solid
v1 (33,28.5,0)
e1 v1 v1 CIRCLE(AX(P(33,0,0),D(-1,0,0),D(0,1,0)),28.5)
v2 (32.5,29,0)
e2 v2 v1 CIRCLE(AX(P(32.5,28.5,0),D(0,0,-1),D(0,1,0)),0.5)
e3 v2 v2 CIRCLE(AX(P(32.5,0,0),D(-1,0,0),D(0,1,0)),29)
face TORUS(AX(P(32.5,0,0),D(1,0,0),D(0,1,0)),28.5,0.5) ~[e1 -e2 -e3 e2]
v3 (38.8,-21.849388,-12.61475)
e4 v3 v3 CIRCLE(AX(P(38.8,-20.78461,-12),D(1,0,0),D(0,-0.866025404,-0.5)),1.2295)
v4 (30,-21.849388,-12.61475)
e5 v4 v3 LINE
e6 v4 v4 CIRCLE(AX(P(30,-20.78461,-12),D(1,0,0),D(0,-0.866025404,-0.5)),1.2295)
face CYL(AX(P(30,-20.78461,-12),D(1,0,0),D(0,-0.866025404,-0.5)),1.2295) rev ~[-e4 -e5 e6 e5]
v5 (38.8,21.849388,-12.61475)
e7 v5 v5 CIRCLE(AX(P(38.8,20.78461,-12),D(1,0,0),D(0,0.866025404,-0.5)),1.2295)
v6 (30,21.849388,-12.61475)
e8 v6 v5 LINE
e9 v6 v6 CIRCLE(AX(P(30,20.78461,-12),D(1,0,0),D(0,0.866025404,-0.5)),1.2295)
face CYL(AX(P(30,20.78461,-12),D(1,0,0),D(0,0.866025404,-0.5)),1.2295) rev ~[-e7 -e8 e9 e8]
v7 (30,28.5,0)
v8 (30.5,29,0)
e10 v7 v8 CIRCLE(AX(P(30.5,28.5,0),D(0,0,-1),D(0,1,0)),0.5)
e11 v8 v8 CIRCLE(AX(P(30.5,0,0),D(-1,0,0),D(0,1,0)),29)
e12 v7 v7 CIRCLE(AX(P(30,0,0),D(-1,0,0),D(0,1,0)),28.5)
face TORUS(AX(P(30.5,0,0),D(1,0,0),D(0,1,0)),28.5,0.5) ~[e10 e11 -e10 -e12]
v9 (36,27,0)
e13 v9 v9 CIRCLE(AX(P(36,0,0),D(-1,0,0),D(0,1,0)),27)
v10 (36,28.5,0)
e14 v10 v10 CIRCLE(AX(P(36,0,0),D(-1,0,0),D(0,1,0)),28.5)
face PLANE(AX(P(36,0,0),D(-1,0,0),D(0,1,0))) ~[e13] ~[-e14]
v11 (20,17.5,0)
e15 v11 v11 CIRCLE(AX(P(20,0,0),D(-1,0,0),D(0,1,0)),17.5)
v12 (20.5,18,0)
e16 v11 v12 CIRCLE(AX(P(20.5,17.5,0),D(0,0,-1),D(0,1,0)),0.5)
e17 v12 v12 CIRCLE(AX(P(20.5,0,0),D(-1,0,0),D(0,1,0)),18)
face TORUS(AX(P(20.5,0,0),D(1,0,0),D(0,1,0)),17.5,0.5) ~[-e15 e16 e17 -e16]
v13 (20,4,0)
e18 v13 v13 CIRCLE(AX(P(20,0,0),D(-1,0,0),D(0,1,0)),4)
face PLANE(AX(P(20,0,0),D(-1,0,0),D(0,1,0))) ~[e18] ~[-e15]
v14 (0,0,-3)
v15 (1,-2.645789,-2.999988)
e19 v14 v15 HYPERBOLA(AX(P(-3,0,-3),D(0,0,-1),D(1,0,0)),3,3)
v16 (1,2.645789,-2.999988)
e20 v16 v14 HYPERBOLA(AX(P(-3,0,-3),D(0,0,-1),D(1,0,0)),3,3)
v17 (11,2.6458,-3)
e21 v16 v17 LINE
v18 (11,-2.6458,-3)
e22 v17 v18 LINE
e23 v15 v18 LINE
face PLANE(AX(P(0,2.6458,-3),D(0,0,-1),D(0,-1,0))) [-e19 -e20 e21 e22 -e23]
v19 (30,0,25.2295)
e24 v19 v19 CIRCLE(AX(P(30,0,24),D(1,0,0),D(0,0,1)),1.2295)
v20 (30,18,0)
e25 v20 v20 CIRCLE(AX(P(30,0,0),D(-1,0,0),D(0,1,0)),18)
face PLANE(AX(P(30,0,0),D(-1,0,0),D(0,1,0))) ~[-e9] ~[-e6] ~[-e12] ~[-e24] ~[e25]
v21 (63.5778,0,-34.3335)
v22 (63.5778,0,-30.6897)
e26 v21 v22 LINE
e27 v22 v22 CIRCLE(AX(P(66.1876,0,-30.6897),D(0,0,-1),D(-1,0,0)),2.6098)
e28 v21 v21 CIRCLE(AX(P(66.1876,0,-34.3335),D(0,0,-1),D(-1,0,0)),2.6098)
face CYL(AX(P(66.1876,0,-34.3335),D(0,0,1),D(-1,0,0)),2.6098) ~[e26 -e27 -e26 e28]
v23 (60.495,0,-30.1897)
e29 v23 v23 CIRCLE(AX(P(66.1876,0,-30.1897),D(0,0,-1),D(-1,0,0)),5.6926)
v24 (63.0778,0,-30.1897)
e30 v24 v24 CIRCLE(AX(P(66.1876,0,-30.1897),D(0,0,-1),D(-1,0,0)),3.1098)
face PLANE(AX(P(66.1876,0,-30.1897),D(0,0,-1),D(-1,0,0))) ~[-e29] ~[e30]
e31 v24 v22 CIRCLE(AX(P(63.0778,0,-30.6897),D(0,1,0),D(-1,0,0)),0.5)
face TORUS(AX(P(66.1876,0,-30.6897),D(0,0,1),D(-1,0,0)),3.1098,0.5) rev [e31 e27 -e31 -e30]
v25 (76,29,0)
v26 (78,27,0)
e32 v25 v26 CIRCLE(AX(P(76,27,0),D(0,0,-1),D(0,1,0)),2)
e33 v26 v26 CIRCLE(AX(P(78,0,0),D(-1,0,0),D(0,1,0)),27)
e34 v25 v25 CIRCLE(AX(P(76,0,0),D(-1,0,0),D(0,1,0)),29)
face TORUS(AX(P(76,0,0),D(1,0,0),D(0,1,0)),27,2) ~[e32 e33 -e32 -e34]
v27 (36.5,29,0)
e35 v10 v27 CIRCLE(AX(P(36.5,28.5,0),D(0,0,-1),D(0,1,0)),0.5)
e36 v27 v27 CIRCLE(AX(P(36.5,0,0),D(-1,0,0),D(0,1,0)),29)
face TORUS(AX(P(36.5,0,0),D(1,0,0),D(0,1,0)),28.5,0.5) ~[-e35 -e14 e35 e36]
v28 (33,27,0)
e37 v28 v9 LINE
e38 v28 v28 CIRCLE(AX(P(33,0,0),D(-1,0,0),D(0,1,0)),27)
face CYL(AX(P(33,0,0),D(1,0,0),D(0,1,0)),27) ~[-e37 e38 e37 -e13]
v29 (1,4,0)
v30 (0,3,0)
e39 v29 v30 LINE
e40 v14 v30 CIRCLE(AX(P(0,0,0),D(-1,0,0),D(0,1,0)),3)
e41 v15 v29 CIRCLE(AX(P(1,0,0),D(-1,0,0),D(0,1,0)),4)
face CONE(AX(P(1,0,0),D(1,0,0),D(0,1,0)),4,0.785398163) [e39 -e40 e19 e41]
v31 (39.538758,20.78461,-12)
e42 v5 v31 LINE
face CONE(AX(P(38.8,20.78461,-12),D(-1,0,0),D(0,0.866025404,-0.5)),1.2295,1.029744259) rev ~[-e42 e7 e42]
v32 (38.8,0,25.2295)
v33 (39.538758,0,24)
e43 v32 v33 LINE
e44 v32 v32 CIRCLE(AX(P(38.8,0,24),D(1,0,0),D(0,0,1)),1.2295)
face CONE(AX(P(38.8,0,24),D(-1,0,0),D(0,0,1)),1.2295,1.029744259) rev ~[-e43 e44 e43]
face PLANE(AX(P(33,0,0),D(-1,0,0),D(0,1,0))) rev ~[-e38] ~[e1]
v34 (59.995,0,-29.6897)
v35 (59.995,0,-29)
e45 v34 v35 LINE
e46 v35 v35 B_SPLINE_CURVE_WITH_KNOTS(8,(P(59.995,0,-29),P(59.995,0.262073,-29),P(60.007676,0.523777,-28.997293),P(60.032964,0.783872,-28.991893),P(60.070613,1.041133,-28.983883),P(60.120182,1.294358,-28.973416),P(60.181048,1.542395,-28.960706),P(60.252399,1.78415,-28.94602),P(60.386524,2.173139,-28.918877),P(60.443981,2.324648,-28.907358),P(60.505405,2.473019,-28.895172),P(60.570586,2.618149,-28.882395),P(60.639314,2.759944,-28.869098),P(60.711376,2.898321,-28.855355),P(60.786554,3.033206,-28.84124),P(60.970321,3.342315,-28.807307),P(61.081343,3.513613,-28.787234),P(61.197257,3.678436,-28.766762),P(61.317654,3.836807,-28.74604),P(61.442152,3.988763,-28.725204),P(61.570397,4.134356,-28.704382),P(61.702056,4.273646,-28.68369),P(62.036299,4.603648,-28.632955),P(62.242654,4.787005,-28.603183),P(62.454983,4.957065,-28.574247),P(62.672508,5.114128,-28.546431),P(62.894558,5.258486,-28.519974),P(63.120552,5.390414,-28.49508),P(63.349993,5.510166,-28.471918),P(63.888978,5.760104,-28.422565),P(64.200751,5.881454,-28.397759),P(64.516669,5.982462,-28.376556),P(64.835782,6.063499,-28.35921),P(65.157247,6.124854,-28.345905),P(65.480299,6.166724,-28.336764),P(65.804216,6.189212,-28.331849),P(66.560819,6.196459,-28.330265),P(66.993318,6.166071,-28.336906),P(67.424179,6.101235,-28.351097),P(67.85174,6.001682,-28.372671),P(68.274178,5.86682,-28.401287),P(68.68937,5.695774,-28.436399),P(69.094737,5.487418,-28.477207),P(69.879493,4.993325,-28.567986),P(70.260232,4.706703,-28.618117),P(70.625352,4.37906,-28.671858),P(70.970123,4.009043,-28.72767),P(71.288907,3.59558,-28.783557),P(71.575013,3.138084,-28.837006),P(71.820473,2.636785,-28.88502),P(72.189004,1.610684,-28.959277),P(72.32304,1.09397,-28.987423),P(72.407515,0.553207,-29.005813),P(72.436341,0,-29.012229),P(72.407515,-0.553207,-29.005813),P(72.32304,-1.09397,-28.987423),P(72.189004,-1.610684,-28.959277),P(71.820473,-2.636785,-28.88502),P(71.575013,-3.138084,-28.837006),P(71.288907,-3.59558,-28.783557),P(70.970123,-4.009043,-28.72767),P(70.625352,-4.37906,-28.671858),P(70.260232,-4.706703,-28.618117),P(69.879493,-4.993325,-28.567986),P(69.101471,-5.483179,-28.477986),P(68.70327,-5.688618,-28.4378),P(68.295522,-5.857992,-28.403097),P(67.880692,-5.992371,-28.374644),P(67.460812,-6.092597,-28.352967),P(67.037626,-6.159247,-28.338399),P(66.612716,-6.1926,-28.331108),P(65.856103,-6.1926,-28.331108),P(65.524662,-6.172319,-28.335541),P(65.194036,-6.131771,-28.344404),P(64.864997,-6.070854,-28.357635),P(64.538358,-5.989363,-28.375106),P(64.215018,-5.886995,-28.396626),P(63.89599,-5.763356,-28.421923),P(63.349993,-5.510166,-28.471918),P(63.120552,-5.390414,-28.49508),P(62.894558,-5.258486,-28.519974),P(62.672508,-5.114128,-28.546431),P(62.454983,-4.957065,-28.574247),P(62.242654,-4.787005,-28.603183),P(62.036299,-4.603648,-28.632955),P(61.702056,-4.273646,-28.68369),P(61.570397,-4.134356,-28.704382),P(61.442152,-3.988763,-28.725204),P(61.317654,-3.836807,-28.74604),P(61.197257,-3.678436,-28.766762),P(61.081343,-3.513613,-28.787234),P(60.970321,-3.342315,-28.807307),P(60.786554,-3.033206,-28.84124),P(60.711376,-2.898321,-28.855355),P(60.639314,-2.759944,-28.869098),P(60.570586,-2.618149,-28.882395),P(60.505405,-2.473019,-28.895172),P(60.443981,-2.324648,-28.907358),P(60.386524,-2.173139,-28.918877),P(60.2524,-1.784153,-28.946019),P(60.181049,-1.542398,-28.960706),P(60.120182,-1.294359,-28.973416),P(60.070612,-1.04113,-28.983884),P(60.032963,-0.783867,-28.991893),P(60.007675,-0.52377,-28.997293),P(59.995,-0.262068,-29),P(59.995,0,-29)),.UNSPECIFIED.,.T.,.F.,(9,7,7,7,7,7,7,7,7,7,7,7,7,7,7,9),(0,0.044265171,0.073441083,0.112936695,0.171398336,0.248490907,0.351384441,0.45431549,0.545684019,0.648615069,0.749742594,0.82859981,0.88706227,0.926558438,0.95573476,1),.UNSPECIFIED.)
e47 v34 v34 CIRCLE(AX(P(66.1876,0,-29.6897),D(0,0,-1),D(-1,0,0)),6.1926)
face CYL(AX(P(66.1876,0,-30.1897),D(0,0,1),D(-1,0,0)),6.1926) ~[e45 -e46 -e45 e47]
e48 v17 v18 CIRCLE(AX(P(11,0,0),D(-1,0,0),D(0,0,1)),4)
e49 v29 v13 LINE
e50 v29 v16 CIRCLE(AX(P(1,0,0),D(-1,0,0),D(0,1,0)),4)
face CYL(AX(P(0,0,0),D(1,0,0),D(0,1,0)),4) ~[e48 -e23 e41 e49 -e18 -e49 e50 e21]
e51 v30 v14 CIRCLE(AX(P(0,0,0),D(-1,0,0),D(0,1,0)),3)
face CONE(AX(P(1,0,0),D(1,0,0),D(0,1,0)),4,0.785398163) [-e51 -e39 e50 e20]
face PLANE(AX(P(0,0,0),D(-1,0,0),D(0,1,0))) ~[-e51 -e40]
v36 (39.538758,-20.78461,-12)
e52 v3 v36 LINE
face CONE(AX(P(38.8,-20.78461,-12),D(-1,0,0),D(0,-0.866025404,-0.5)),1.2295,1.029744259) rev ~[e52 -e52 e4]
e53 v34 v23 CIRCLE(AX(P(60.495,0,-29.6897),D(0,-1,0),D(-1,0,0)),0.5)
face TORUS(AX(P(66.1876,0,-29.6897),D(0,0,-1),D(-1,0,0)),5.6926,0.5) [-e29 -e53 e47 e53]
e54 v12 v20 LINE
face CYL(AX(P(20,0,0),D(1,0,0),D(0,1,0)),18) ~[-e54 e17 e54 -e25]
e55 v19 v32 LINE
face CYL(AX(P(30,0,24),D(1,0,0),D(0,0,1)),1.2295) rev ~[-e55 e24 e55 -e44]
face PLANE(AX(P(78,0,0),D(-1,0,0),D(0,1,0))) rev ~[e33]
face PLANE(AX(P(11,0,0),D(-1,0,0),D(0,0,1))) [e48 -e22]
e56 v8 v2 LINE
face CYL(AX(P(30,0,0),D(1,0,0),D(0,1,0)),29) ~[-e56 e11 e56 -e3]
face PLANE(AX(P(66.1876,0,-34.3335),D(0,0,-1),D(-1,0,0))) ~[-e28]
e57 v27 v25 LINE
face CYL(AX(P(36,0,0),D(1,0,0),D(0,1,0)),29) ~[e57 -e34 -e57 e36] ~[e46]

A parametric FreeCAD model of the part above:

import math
import FreeCAD as App
import Part
import Sketcher

V = App.Vector


def edges_at(feature, points):
    """Names of the edges that pass closest to the given points."""
    edges = feature.Shape.Edges
    near = lambda p: min(range(len(edges)), key=lambda i: edges[i].distToShape(Part.Vertex(*p))[0])
    return sorted({f"Edge{near(p) + 1}" for p in points})

doc = App.newDocument("Part")
body = doc.addObject("PartDesign::Body", "Body")

sketch1 = body.newObject("Sketcher::SketchObject", "Sketch")
sketch1.AttachmentSupport = (doc.getObject("XY_Plane"), [""])
sketch1.MapMode = "FlatFace"
sketch1.addGeometry(Part.LineSegment(V(0, 4, 0), V(0, 0, 0)), False)
sketch1.addGeometry(Part.LineSegment(V(0, 0, 0), V(78, 0, 0)), False)
sketch1.addGeometry(Part.LineSegment(V(78, 0, 0), V(78, 29, 0)), False)
sketch1.addGeometry(Part.LineSegment(V(78, 29, 0), V(36, 29, 0)), False)
sketch1.addGeometry(Part.LineSegment(V(36, 29, 0), V(36, 27, 0)), False)
sketch1.addGeometry(Part.LineSegment(V(36, 27, 0), V(33, 27, 0)), False)
sketch1.addGeometry(Part.LineSegment(V(33, 27, 0), V(33, 29, 0)), False)
sketch1.addGeometry(Part.LineSegment(V(33, 29, 0), V(30, 29, 0)), False)
sketch1.addGeometry(Part.LineSegment(V(30, 29, 0), V(30, 18, 0)), False)
sketch1.addGeometry(Part.LineSegment(V(30, 18, 0), V(20, 18, 0)), False)
sketch1.addGeometry(Part.LineSegment(V(20, 18, 0), V(20, 4, 0)), False)
sketch1.addGeometry(Part.LineSegment(V(20, 4, 0), V(0, 4, 0)), False)
sketch1.addConstraint(Sketcher.Constraint("Coincident", 0, 2, 1, 1))
sketch1.addConstraint(Sketcher.Constraint("Coincident", 1, 2, 2, 1))
sketch1.addConstraint(Sketcher.Constraint("Coincident", 2, 2, 3, 1))
sketch1.addConstraint(Sketcher.Constraint("Coincident", 3, 2, 4, 1))
sketch1.addConstraint(Sketcher.Constraint("Coincident", 4, 2, 5, 1))
sketch1.addConstraint(Sketcher.Constraint("Coincident", 5, 2, 6, 1))
sketch1.addConstraint(Sketcher.Constraint("Coincident", 6, 2, 7, 1))
sketch1.addConstraint(Sketcher.Constraint("Coincident", 7, 2, 8, 1))
sketch1.addConstraint(Sketcher.Constraint("Coincident", 8, 2, 9, 1))
sketch1.addConstraint(Sketcher.Constraint("Coincident", 9, 2, 10, 1))
sketch1.addConstraint(Sketcher.Constraint("Coincident", 10, 2, 11, 1))
sketch1.addConstraint(Sketcher.Constraint("Coincident", 11, 2, 0, 1))
sketch1.addConstraint(Sketcher.Constraint("Vertical", 0))
sketch1.addConstraint(Sketcher.Constraint("Horizontal", 1))
sketch1.addConstraint(Sketcher.Constraint("Vertical", 2))
sketch1.addConstraint(Sketcher.Constraint("Horizontal", 3))
sketch1.addConstraint(Sketcher.Constraint("Vertical", 4))
sketch1.addConstraint(Sketcher.Constraint("Horizontal", 5))
sketch1.addConstraint(Sketcher.Constraint("Vertical", 6))
sketch1.addConstraint(Sketcher.Constraint("Horizontal", 7))
sketch1.addConstraint(Sketcher.Constraint("Vertical", 8))
sketch1.addConstraint(Sketcher.Constraint("Horizontal", 9))
sketch1.addConstraint(Sketcher.Constraint("Vertical", 10))
sketch1.addConstraint(Sketcher.Constraint("Horizontal", 11))
sketch1.addConstraint(Sketcher.Constraint("Coincident", 0, 2, -1, 1))
sketch1.addConstraint(Sketcher.Constraint("Horizontal", 3, 2, 6, 2))
sketch1.addConstraint(Sketcher.Constraint("Equal", 5, 7))
sketch1.addConstraint(Sketcher.Constraint("DistanceX", 3, 2, 3, 1, 42.0))
sketch1.addConstraint(Sketcher.Constraint("DistanceX", 5, 2, 5, 1, 3.0))
sketch1.addConstraint(Sketcher.Constraint("DistanceX", 9, 2, 9, 1, 10.0))
sketch1.addConstraint(Sketcher.Constraint("DistanceX", 11, 2, 11, 1, 20.0))
sketch1.addConstraint(Sketcher.Constraint("DistanceY", 0, 2, 0, 1, 4.0))
sketch1.addConstraint(Sketcher.Constraint("DistanceY", 2, 1, 2, 2, 29.0))
sketch1.addConstraint(Sketcher.Constraint("DistanceY", 4, 2, 4, 1, 2.0))
sketch1.addConstraint(Sketcher.Constraint("DistanceY", 8, 2, 8, 1, 11.0))
revolution = body.newObject("PartDesign::Revolution", "Revolution")
revolution.Profile = sketch1
revolution.ReferenceAxis = (sketch1, ["H_Axis"])
revolution.Angle = 360
doc.recompute()

fillet = body.newObject("PartDesign::Fillet", "Fillet")
fillet.Base = (revolution, edges_at(revolution, [(78, -29, 0)]))
fillet.Radius = 2
doc.recompute()

fillet2 = body.newObject("PartDesign::Fillet", "Fillet001")
fillet2.Base = (fillet, edges_at(fillet, [
    (20, -18, 0),
    (30, -29, 0),
    (36, -29, 0),
    (33, -29, 0),
]))
fillet2.Radius = 0.5
doc.recompute()

chamfer = body.newObject("PartDesign::Chamfer", "Chamfer")
chamfer.Base = (fillet2, edges_at(fillet2, [(0, -4, 0)]))
chamfer.Size = 1

sketch2 = body.newObject("Sketcher::SketchObject", "Sketch001")
sketch2.AttachmentSupport = (doc.getObject("YZ_Plane"), [""])
sketch2.MapMode = "FlatFace"
sketch2.AttachmentOffset = App.Placement(V(0, 0, 30), App.Rotation())
sketch2.addGeometry(Part.Circle(V(0, 24, 0), V(0, 0, 1), 1.2), False)
sketch2.addConstraint(Sketcher.Constraint("PointOnObject", 0, 3, -2))
sketch2.addConstraint(Sketcher.Constraint("Diameter", 0, 2.459))
sketch2.addConstraint(Sketcher.Constraint("DistanceY", -1, 1, 0, 3, 24.0))
doc.recompute()
hole = body.newObject("PartDesign::Hole", "Hole")
hole.Profile = sketch2
hole.ThreadType = "None"
hole.Diameter = 2.459
hole.DepthType = "Dimension"
hole.Depth = 8.8
hole.DrillPoint = "Angled"
hole.DrillPointAngle = 118
hole.Reversed = True
doc.recompute()

polarpattern = body.newObject("PartDesign::PolarPattern", "PolarPattern")
polarpattern.Originals = [hole]
polarpattern.Axis = (doc.getObject("X_Axis"), [""])
polarpattern.Angle = 360
polarpattern.Occurrences = 3
body.Tip = polarpattern

sketch3 = body.newObject("Sketcher::SketchObject", "Sketch002")
sketch3.AttachmentSupport = (doc.getObject("XZ_Plane"), [""])
sketch3.MapMode = "FlatFace"
sketch3.addGeometry(Part.LineSegment(V(66.2, -34.3, 0), V(63.6, -34.3, 0)), False)
sketch3.addGeometry(Part.LineSegment(V(63.6, -34.3, 0), V(63.6, -30.2, 0)), False)
sketch3.addGeometry(Part.LineSegment(V(63.6, -30.2, 0), V(60, -30.2, 0)), False)
sketch3.addGeometry(Part.LineSegment(V(60, -30.2, 0), V(60, -26.9, 0)), False)
sketch3.addGeometry(Part.LineSegment(V(60, -26.9, 0), V(66.2, -26.9, 0)), False)
sketch3.addGeometry(Part.LineSegment(V(66.2, -26.9, 0), V(66.2, -34.3, 0)), False)
sketch3.addGeometry(Part.LineSegment(V(66.2, -26.9, 0), V(66.2, -34.3, 0)), True)
sketch3.addConstraint(Sketcher.Constraint("Coincident", 0, 2, 1, 1))
sketch3.addConstraint(Sketcher.Constraint("Coincident", 1, 2, 2, 1))
sketch3.addConstraint(Sketcher.Constraint("Coincident", 2, 2, 3, 1))
sketch3.addConstraint(Sketcher.Constraint("Coincident", 3, 2, 4, 1))
sketch3.addConstraint(Sketcher.Constraint("Coincident", 4, 2, 5, 1))
sketch3.addConstraint(Sketcher.Constraint("Coincident", 5, 2, 0, 1))
sketch3.addConstraint(Sketcher.Constraint("Horizontal", 0))
sketch3.addConstraint(Sketcher.Constraint("Vertical", 1))
sketch3.addConstraint(Sketcher.Constraint("Horizontal", 2))
sketch3.addConstraint(Sketcher.Constraint("Vertical", 3))
sketch3.addConstraint(Sketcher.Constraint("Horizontal", 4))
sketch3.addConstraint(Sketcher.Constraint("Vertical", 5))
sketch3.addConstraint(Sketcher.Constraint("Vertical", 6))
sketch3.addConstraint(Sketcher.Constraint("Coincident", 6, 1, 4, 2))
sketch3.addConstraint(Sketcher.Constraint("Horizontal", 0, 2, 6, 2))
sketch3.addConstraint(Sketcher.Constraint("DistanceX", 0, 2, 0, 1, 2.6098))
sketch3.addConstraint(Sketcher.Constraint("DistanceX", 2, 2, 2, 1, 3.5828))
sketch3.addConstraint(Sketcher.Constraint("DistanceY", 1, 1, 1, 2, 4.1438))
sketch3.addConstraint(Sketcher.Constraint("DistanceY", 3, 1, 3, 2, 3.2485))
sketch3.addConstraint(Sketcher.Constraint("DistanceX", -1, 1, 2, 2, 59.995))
sketch3.addConstraint(Sketcher.Constraint("DistanceY", 0, 2, -1, 1, 34.3335))
revolution2 = body.newObject("PartDesign::Revolution", "Revolution001")
revolution2.Profile = sketch3
revolution2.ReferenceAxis = (sketch3, ["Axis0"])
revolution2.Angle = 360
doc.recompute()

fillet3 = body.newObject("PartDesign::Fillet", "Fillet002")
fillet3.Base = (revolution2, edges_at(revolution2, [(72.38, 0, -30.19), (68.797, 0, -30.19)]))
fillet3.Radius = 0.5

sketch4 = body.newObject("Sketcher::SketchObject", "Sketch003")
sketch4.AttachmentSupport = (doc.getObject("YZ_Plane"), [""])
sketch4.MapMode = "FlatFace"
sketch4.addGeometry(Part.LineSegment(V(-2.6, -3, 0), V(2.6, -3, 0)), False)
sketch4.addGeometry(Part.ArcOfCircle(Part.Circle(V(0, 0, 0), V(0, 0, 1), 4), math.radians(-131), math.radians(-49)), False)
sketch4.addConstraint(Sketcher.Constraint("Coincident", 0, 1, 1, 1))
sketch4.addConstraint(Sketcher.Constraint("Coincident", 1, 2, 0, 2))
sketch4.addConstraint(Sketcher.Constraint("Horizontal", 0))
sketch4.addConstraint(Sketcher.Constraint("Coincident", 1, 3, -1, 1))
sketch4.addConstraint(Sketcher.Constraint("DistanceY", 0, 1, -1, 1, 3.0))
sketch4.addConstraint(Sketcher.Constraint("Radius", 1, 4.0))
pocket1 = body.newObject("PartDesign::Pocket", "Pocket")
pocket1.Profile = sketch4
pocket1.Length = 11
pocket1.Reversed = True

doc.recompute()
